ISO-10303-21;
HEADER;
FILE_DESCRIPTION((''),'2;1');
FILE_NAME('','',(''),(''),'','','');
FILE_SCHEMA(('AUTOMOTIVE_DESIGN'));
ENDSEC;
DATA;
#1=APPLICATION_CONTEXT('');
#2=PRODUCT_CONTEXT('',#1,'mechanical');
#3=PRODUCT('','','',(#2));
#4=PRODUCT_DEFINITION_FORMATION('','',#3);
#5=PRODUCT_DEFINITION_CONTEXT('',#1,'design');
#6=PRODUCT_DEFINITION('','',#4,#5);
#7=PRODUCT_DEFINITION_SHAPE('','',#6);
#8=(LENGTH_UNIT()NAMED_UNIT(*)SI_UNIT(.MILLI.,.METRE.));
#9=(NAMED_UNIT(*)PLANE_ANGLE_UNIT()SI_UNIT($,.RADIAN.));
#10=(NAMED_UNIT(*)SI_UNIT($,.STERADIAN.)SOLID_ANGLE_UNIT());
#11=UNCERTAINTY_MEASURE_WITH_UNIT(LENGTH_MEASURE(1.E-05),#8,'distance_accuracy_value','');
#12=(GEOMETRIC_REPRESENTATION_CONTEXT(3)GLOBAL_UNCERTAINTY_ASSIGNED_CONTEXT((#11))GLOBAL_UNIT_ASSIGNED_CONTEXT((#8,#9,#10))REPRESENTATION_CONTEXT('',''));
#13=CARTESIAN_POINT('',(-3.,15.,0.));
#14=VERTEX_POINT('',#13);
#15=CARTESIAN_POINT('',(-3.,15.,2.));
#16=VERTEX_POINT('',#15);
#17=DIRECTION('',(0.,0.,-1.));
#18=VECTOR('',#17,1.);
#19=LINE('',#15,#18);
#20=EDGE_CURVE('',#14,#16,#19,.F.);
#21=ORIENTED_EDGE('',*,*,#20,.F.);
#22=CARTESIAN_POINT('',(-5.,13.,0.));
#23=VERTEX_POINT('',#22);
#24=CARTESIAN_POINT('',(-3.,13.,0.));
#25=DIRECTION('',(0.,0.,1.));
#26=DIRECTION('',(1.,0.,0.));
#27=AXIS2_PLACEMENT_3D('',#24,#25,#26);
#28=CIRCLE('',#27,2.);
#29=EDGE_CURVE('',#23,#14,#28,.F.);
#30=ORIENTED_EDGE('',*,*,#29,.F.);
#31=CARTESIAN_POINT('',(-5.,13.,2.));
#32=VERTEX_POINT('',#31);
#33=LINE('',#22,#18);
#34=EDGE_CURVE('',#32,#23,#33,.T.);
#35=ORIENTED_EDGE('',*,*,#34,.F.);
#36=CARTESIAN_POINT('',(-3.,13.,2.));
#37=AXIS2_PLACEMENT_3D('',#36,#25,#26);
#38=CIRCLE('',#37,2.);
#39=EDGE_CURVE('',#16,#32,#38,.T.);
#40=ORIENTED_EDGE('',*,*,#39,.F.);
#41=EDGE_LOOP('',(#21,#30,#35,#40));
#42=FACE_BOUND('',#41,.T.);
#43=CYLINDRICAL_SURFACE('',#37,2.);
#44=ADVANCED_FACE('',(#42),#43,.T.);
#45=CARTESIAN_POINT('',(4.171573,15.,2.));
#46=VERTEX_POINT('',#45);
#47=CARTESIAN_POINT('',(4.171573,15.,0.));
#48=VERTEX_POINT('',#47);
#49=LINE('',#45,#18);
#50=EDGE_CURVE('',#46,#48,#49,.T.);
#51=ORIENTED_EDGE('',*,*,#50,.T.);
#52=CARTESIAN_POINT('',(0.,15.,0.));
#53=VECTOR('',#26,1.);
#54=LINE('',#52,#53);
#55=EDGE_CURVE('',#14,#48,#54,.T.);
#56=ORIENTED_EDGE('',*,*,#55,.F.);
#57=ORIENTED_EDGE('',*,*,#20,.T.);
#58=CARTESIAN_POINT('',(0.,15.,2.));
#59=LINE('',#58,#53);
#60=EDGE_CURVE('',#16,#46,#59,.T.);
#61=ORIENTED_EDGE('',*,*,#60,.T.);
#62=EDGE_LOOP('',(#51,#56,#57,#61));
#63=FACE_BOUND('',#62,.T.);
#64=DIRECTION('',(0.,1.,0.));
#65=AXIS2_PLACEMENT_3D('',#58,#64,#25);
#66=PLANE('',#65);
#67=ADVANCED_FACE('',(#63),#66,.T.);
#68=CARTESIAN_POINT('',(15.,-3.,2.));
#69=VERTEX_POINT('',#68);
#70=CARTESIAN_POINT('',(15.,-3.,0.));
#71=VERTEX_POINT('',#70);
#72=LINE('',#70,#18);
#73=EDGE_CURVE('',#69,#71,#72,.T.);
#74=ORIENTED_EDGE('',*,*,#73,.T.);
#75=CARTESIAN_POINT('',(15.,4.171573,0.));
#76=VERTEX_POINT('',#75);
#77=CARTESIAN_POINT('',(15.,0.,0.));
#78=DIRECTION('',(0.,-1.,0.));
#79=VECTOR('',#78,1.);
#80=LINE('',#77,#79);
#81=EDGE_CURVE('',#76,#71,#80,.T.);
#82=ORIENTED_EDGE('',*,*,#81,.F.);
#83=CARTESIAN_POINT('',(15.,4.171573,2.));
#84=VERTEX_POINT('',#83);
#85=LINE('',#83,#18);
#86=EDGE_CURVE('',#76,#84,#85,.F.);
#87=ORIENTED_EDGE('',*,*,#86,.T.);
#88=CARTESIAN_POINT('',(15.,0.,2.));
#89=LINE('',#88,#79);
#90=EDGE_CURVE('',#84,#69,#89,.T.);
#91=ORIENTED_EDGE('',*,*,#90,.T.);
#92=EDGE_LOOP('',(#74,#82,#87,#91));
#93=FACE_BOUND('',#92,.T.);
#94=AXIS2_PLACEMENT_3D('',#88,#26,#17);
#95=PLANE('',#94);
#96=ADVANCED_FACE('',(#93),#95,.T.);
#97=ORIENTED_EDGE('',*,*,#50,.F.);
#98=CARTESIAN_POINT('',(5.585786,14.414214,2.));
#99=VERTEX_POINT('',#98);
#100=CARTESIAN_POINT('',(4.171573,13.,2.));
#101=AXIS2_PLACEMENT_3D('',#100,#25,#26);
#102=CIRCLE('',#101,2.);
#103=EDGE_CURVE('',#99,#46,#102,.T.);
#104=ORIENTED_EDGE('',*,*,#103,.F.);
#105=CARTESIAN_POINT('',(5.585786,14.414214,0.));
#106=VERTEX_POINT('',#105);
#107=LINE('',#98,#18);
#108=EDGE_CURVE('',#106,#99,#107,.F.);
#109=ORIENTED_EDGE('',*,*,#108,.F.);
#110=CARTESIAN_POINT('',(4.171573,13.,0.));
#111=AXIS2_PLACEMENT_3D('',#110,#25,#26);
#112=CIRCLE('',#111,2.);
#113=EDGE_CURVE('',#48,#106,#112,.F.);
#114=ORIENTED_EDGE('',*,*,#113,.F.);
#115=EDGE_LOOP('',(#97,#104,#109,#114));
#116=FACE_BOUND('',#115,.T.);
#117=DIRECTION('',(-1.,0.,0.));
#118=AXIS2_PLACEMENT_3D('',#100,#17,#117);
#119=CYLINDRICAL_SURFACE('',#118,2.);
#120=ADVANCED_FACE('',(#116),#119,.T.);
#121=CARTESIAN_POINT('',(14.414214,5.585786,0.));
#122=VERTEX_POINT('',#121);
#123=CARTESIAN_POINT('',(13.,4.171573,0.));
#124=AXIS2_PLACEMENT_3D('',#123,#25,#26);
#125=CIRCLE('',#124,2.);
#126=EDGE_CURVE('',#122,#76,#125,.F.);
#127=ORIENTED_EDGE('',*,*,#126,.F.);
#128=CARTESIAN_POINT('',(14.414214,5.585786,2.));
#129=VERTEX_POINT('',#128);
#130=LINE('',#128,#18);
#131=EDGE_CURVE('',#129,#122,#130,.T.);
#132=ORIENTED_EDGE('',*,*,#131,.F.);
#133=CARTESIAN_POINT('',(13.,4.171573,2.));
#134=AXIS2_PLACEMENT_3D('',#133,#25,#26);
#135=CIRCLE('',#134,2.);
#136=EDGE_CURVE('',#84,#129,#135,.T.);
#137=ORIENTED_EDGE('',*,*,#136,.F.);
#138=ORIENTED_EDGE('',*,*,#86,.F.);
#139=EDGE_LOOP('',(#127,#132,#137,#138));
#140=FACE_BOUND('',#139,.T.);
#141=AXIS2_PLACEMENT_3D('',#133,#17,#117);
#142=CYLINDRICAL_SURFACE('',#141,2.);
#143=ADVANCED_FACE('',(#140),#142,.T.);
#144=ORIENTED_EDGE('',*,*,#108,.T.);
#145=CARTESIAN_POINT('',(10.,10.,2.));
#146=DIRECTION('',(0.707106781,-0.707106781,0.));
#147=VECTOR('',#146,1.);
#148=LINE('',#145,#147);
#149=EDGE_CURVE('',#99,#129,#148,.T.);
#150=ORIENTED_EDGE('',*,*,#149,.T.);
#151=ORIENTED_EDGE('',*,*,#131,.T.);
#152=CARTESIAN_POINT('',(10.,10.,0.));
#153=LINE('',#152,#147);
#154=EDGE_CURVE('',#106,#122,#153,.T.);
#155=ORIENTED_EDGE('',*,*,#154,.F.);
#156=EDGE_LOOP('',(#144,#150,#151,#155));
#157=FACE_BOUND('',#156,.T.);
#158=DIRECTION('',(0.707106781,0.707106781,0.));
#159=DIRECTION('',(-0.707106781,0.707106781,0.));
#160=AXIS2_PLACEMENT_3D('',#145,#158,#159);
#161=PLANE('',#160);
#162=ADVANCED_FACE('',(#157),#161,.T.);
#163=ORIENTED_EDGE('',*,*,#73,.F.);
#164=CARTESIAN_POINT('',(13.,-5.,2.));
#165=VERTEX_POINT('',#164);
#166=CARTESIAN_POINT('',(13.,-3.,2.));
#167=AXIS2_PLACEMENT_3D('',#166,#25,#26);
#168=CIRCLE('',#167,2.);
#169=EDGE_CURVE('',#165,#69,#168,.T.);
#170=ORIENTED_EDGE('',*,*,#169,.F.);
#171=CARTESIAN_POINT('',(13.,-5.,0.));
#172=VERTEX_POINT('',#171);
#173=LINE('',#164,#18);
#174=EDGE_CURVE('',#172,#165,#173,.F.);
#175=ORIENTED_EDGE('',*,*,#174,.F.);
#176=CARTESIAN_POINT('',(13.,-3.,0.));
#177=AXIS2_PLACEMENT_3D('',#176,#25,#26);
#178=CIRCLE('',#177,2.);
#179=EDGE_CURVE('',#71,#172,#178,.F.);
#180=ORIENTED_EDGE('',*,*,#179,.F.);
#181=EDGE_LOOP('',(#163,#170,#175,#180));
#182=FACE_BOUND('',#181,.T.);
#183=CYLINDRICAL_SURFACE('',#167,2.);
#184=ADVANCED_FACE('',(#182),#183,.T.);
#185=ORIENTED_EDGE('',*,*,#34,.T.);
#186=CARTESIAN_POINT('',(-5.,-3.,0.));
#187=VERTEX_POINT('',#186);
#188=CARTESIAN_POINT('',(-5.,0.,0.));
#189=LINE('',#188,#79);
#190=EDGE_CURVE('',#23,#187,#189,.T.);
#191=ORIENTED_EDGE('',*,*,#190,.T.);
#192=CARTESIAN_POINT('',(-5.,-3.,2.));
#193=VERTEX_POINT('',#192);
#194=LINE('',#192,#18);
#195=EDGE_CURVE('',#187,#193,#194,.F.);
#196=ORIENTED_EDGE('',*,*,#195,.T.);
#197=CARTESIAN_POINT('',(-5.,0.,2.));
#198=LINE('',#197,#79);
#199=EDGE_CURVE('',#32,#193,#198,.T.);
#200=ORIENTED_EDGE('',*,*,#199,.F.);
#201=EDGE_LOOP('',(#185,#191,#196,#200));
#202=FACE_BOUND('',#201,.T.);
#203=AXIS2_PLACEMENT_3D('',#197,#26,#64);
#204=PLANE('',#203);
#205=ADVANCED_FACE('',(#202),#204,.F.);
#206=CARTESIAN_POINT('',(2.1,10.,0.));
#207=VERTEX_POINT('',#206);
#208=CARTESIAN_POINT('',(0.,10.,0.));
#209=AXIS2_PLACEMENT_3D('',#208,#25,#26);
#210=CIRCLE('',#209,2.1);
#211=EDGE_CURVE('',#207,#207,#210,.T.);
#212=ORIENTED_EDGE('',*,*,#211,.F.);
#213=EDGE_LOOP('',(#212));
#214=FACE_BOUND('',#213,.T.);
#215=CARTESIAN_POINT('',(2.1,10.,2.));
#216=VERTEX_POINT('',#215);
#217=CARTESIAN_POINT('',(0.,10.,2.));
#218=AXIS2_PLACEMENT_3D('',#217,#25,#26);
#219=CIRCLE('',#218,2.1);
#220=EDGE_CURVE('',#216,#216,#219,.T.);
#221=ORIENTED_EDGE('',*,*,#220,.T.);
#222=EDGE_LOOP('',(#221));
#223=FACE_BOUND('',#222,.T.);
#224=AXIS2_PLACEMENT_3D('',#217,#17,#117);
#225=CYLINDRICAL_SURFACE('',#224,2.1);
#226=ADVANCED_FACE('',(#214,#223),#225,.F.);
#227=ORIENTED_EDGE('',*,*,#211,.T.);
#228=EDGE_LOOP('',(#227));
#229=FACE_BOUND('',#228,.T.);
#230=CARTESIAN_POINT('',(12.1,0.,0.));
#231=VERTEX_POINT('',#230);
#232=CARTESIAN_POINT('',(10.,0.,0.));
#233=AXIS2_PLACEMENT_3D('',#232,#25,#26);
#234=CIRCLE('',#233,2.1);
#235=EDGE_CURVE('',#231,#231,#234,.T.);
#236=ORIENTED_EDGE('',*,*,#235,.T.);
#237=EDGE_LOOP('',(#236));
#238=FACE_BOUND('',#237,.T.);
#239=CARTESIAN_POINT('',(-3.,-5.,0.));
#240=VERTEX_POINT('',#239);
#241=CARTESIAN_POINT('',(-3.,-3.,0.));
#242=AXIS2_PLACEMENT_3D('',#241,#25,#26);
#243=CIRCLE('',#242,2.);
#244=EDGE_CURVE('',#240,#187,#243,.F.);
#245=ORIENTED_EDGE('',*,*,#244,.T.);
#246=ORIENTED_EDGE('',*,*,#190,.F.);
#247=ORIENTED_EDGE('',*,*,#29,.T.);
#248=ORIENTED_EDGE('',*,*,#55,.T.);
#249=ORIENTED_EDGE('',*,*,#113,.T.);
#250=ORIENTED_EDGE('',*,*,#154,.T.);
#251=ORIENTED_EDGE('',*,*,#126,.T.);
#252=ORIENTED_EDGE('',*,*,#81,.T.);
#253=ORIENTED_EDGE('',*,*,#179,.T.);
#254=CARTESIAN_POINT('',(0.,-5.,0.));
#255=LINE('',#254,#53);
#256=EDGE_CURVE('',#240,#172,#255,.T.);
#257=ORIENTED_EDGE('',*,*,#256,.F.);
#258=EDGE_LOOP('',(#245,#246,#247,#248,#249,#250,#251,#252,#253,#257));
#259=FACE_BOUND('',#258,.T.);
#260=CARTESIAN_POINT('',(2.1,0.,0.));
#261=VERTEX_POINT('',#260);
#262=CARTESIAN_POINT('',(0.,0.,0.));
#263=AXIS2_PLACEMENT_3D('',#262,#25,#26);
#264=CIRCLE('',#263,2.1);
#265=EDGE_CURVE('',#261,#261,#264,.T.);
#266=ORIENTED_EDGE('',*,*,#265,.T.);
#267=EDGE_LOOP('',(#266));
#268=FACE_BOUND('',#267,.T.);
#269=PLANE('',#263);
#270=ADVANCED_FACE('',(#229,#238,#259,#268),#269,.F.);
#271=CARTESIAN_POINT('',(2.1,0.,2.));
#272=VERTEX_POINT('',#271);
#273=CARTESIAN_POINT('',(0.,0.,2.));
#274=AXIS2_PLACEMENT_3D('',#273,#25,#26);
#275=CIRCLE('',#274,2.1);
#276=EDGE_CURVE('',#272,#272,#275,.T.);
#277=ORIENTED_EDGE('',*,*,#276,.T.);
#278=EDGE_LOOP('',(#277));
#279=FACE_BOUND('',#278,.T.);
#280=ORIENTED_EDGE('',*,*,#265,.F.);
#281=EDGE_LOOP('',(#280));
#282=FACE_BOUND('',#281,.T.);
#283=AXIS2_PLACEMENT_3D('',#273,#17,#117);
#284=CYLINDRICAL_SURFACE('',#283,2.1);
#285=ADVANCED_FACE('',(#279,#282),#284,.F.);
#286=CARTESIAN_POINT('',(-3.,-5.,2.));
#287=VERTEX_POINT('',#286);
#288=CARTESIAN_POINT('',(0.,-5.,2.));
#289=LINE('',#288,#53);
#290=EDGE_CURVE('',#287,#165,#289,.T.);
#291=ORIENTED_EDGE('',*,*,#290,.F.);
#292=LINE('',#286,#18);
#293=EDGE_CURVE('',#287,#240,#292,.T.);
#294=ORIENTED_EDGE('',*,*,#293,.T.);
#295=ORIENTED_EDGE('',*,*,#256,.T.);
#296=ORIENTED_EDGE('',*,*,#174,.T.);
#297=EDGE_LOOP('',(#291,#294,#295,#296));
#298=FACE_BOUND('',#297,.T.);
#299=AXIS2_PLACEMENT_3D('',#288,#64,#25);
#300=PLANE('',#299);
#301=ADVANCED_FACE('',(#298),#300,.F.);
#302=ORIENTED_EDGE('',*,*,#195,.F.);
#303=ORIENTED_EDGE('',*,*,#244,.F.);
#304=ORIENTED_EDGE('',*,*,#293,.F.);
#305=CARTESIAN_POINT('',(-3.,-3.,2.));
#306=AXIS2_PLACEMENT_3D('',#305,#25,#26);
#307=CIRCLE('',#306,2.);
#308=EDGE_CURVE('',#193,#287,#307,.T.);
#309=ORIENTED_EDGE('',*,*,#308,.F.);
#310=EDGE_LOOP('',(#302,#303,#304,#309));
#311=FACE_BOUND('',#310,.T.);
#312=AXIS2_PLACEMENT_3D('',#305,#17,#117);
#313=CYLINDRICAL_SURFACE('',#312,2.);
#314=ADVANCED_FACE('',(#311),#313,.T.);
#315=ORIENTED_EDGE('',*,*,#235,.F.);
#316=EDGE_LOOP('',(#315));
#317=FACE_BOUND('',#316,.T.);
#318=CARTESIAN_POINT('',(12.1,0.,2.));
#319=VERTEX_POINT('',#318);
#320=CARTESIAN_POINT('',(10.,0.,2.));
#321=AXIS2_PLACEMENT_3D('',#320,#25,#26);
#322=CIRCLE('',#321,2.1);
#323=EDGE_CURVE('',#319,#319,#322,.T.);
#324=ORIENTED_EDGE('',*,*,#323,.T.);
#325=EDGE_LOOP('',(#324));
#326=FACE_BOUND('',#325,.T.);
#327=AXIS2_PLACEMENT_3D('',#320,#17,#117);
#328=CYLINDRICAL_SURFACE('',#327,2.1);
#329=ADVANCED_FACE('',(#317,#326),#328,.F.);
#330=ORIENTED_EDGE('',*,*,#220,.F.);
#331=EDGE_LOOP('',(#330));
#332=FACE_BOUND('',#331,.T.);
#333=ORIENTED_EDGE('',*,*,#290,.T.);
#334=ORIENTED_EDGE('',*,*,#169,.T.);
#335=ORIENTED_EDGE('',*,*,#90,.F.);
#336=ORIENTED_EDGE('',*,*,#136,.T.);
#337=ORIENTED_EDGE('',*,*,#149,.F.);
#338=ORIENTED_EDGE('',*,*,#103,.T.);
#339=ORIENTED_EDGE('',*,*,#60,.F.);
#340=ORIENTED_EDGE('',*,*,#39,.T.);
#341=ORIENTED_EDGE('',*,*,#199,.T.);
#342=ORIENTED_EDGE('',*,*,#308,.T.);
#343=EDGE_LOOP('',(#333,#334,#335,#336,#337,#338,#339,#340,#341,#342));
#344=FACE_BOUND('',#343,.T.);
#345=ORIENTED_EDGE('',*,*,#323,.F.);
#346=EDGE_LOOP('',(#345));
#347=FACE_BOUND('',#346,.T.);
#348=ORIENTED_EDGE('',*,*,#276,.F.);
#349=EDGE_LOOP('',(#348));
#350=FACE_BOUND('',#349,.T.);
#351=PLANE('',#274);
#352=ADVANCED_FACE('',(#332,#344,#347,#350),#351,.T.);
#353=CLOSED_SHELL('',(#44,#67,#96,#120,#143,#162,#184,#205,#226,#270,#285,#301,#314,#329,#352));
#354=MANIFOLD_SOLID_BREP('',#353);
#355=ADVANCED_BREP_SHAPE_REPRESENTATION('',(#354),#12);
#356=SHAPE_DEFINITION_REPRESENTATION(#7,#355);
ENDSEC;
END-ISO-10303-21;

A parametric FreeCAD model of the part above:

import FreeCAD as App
import Part
import Sketcher
Q = App.Units.Quantity


def edges_at(feature, points):
    """Names of the edges that pass closest to the given points."""
    edges = feature.Shape.Edges
    near = lambda p: min(range(len(edges)), key=lambda i: edges[i].distToShape(Part.Vertex(*p))[0])
    return sorted({f"Edge{near(p) + 1}" for p in points})

doc = App.newDocument("Part")
body = doc.addObject("PartDesign::Body", "Body")

sketch1 = body.newObject("Sketcher::SketchObject", "Sketch")
sketch1.AttachmentSupport = (doc.getObject("XY_Plane"), [""])
sketch1.MapMode = "FlatFace"
sketch1.addGeometry([
    Part.LineSegment(App.Vector(-5, 15, 0), App.Vector(-5, -5, 0)),
    Part.LineSegment(App.Vector(-5, -5, 0), App.Vector(15, -5, 0)),
    Part.LineSegment(App.Vector(15, -5, 0), App.Vector(15, 5, 0)),
    Part.LineSegment(App.Vector(15, 5, 0), App.Vector(5, 15, 0)),
    Part.LineSegment(App.Vector(5, 15, 0), App.Vector(-5, 15, 0)),
    Part.Circle(App.Vector(0, 10, 0), App.Vector(0, 0, 1), 2.1),
    Part.Circle(App.Vector(0, 0, 0), App.Vector(0, 0, 1), 2.1),
    Part.Circle(App.Vector(10, 0, 0), App.Vector(0, 0, 1), 2.1),
], False)
sketch1.addConstraint([
    Sketcher.Constraint("Coincident", 0, 2, 1, 1),
    Sketcher.Constraint("Coincident", 1, 2, 2, 1),
    Sketcher.Constraint("Coincident", 2, 2, 3, 1),
    Sketcher.Constraint("Coincident", 3, 2, 4, 1),
    Sketcher.Constraint("Coincident", 4, 2, 0, 1),
    Sketcher.Constraint("Vertical", 0),
    Sketcher.Constraint("Horizontal", 1),
    Sketcher.Constraint("Vertical", 2),
    Sketcher.Constraint("Horizontal", 4),
    Sketcher.Constraint("Coincident", 6, 3, -1, 1),
    Sketcher.Constraint("Equal", 5, 6),
    Sketcher.Constraint("Equal", 6, 7),
    Sketcher.Constraint("PointOnObject", 5, 3, -2),
    Sketcher.Constraint("PointOnObject", 7, 3, -1),
    Sketcher.Constraint("Equal", 1, 0),
    Sketcher.Constraint("Equal", 4, 2),
    Sketcher.Constraint("Diameter", 5, Q("4.2 mm")),
    Sketcher.Constraint("DistanceX", 1, 1, 1, 2, Q("20 mm")),
    Sketcher.Constraint("DistanceX", 4, 2, 4, 1, Q("10 mm")),
    Sketcher.Constraint("DistanceY", -1, 1, 5, 3, Q("10 mm")),
    Sketcher.Constraint("DistanceX", -1, 1, 7, 3, Q("10 mm")),
    Sketcher.Constraint("DistanceX", 0, 2, -1, 1, Q("5 mm")),
    Sketcher.Constraint("DistanceY", 0, 2, -1, 1, Q("5 mm")),
])
pad1 = body.newObject("PartDesign::Pad", "Pad")
pad1.Profile = sketch1
pad1.Length = 2
doc.recompute()

fillet = body.newObject("PartDesign::Fillet", "Fillet")
fillet.Base = (pad1, edges_at(pad1, [
    (-5, -5, 1),
    (-5, 15, 1),
    (5, 15, 1),
    (15, 5, 1),
    (15, -5, 1),
]))
fillet.Radius = 2

doc.recompute()
